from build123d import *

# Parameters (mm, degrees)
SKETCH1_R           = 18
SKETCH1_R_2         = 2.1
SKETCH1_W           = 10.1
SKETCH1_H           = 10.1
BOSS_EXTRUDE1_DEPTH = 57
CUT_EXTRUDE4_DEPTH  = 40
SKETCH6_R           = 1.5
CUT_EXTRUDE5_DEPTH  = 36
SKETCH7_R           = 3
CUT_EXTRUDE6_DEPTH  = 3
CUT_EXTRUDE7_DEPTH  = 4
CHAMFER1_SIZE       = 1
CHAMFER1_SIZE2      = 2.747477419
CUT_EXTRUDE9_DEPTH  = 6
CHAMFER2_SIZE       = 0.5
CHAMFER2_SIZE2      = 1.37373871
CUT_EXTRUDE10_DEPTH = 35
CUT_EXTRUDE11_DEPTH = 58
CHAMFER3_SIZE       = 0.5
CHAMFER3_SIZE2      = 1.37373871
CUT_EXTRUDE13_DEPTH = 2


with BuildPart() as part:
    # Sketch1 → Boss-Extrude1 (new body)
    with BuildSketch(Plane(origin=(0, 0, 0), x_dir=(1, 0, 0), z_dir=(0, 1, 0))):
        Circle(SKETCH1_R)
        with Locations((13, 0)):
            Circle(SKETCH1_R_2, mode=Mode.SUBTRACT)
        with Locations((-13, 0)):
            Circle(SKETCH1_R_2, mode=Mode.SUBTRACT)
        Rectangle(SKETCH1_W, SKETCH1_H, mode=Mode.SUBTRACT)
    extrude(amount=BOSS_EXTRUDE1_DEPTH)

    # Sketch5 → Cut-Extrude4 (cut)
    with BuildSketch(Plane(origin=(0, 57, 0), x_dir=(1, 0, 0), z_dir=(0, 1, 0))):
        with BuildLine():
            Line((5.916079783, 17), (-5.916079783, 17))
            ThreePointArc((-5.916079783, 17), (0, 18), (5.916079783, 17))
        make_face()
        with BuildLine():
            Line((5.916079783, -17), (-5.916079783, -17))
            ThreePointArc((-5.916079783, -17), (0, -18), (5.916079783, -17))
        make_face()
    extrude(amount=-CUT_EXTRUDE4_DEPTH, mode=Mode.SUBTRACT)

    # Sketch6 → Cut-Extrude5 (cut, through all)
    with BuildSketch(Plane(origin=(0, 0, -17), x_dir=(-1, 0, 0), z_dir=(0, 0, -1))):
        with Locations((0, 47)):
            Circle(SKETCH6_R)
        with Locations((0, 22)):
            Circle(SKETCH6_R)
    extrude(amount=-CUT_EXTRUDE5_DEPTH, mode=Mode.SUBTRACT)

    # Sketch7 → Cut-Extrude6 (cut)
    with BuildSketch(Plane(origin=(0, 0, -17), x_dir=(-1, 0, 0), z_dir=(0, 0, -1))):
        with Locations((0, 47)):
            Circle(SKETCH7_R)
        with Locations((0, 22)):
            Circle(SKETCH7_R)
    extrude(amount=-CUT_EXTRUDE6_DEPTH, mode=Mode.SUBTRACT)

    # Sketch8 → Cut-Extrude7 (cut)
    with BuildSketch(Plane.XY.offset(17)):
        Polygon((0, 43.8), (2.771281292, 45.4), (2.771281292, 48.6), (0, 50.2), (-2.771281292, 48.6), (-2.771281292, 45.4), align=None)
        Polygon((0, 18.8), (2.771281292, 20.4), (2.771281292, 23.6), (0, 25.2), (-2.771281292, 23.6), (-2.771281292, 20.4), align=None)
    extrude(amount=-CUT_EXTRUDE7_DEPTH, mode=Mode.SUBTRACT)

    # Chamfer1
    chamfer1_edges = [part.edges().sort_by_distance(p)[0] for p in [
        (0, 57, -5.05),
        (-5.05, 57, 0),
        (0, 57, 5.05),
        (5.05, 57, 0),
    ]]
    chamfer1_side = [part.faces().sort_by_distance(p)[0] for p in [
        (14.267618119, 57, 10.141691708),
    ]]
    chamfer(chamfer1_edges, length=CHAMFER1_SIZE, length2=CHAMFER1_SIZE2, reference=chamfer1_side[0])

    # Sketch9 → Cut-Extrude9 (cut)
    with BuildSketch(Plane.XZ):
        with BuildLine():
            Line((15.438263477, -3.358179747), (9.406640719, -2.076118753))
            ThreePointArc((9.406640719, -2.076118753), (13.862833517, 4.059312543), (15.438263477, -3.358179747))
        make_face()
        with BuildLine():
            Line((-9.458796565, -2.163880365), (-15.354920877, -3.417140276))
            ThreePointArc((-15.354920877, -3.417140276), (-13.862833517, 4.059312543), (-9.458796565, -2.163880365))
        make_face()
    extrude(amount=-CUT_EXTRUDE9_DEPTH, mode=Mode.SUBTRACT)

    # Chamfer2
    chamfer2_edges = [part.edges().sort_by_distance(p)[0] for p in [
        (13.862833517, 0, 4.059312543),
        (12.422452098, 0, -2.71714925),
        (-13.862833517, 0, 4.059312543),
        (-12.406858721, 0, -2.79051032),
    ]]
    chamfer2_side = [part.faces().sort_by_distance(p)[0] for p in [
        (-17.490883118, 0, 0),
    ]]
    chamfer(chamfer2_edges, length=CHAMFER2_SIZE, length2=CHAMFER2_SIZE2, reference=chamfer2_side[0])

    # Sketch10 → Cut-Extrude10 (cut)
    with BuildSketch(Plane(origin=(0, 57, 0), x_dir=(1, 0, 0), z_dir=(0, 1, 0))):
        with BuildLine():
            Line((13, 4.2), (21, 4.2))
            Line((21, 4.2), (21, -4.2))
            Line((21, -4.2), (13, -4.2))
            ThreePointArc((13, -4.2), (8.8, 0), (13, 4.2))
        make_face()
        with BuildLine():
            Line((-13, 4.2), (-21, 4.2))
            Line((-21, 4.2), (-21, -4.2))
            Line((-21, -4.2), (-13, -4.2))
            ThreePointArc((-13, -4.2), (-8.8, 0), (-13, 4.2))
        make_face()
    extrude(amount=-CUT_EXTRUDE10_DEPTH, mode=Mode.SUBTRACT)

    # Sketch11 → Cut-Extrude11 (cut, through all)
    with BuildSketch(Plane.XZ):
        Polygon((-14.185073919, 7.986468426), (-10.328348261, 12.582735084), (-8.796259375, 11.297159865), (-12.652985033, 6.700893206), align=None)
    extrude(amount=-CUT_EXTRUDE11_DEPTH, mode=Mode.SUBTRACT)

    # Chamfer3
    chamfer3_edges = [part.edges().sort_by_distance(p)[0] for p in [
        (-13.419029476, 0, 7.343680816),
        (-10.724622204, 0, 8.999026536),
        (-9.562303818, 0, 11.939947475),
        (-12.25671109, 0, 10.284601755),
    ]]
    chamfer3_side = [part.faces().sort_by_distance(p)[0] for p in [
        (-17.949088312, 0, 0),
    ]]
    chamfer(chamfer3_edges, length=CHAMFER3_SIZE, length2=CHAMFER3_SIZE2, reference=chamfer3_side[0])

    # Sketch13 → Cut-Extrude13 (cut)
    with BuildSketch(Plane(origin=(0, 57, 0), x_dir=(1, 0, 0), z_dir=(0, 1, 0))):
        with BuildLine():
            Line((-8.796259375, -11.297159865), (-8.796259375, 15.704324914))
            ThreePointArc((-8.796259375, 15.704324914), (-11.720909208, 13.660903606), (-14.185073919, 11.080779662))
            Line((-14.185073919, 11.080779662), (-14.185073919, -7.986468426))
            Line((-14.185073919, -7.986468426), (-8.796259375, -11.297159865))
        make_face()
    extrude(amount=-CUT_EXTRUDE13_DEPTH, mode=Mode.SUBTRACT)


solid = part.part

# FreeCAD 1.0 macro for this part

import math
import FreeCAD as App
import Part
import Sketcher
Q = App.Units.Quantity


def edges_at(feature, points):
    """Names of the edges that pass closest to the given points."""
    edges = feature.Shape.Edges
    near = lambda p: min(range(len(edges)), key=lambda i: edges[i].distToShape(Part.Vertex(*p))[0])
    return sorted({f"Edge{near(p) + 1}" for p in points})

doc = App.newDocument("Part")
body = doc.addObject("PartDesign::Body", "Body")

# Sketch on XZ plane
sketch1 = body.newObject("Sketcher::SketchObject", "Sketch")
sketch1.AttachmentSupport = (doc.getObject("XZ_Plane"), [""])
sketch1.MapMode = "FlatFace"
sketch1.addGeometry([
    Part.Circle(App.Vector(0, 0, 0), App.Vector(0, 0, 1), 18),  # 0
    Part.Circle(App.Vector(-13, 0, 0), App.Vector(0, 0, 1), 2.1),  # 1
    Part.LineSegment(App.Vector(5, 5, 0), App.Vector(-5, 5, 0)),  # 2
    Part.LineSegment(App.Vector(-5, 5, 0), App.Vector(-5, -5, 0)),  # 3
    Part.LineSegment(App.Vector(-5, -5, 0), App.Vector(5, -5, 0)),  # 4
    Part.LineSegment(App.Vector(5, -5, 0), App.Vector(5, 5, 0)),  # 5
    Part.Circle(App.Vector(13, 0, 0), App.Vector(0, 0, 1), 2.1),  # 6
], False)
sketch1.addConstraint([
    Sketcher.Constraint("Coincident", 2, 2, 3, 1),
    Sketcher.Constraint("Coincident", 3, 2, 4, 1),
    Sketcher.Constraint("Coincident", 4, 2, 5, 1),
    Sketcher.Constraint("Coincident", 5, 2, 2, 1),
    Sketcher.Constraint("Horizontal", 2),
    Sketcher.Constraint("Vertical", 3),
    Sketcher.Constraint("Horizontal", 4),
    Sketcher.Constraint("Vertical", 5),
    Sketcher.Constraint("Coincident", 0, 3, -1, 1),
    Sketcher.Constraint("Equal", 1, 6),
    Sketcher.Constraint("Symmetric", 1, 3, 6, 3, -1, 1),
    Sketcher.Constraint("Symmetric", 2, 2, 4, 2, -1, 1),
    Sketcher.Constraint("PointOnObject", 1, 3, -1),
    Sketcher.Constraint("Equal", 4, 3),
    Sketcher.Constraint("Diameter", 0, 36.0),
    Sketcher.Constraint("Diameter", 1, 4.2),
    Sketcher.Constraint("DistanceX", 2, 2, 2, 1, 10.1),
    Sketcher.Constraint("DistanceX", 1, 3, -1, 1, 13.0),
])
pad1 = body.newObject("PartDesign::Pad", "Pad")
pad1.Profile = sketch1
pad1.Length = 57
pad1.Reversed = True

# Sketch on XZ plane
sketch2 = body.newObject("Sketcher::SketchObject", "Sketch001")
sketch2.AttachmentSupport = (doc.getObject("XZ_Plane"), [""])
sketch2.MapMode = "FlatFace"
sketch2.AttachmentOffset = App.Placement(App.Vector(0, 0, -57), App.Rotation())
sketch2.addGeometry([
    Part.LineSegment(App.Vector(-6, -17, 0), App.Vector(6, -17, 0)),
    Part.ArcOfCircle(Part.Circle(App.Vector(0, 0, 0), App.Vector(0, 0, 1), 18), math.radians(-109), math.radians(-71)),
    Part.LineSegment(App.Vector(6, 17, 0), App.Vector(-6, 17, 0)),
    Part.ArcOfCircle(Part.Circle(App.Vector(0, 0, 0), App.Vector(0, 0, 1), 18), math.radians(71), math.radians(109)),
], False)
sketch2.addConstraint([
    Sketcher.Constraint("Coincident", 0, 1, 1, 1),
    Sketcher.Constraint("Coincident", 1, 2, 0, 2),
    Sketcher.Constraint("Coincident", 2, 1, 3, 1),
    Sketcher.Constraint("Coincident", 3, 2, 2, 2),
    Sketcher.Constraint("Horizontal", 0),
    Sketcher.Constraint("Horizontal", 2),
    Sketcher.Constraint("Coincident", 1, 3, -1, 1),
    Sketcher.Constraint("Coincident", 3, 3, -1, 1),
    Sketcher.Constraint("Equal", 1, 3),
    Sketcher.Constraint("Vertical", 1, 2, 2, 1),
    Sketcher.Constraint("Radius", 1, 18.0),
    Sketcher.Constraint("DistanceY", 0, 1, -1, 1, 17.0),
])
pocket1 = body.newObject("PartDesign::Pocket", "Pocket")
pocket1.Profile = sketch2
pocket1.Length = 40
pocket1.Reversed = True

# Sketch on XY plane
sketch3 = body.newObject("Sketcher::SketchObject", "Sketch002")
sketch3.AttachmentSupport = (doc.getObject("XY_Plane"), [""])
sketch3.MapMode = "FlatFace"
sketch3.AttachmentOffset = App.Placement(App.Vector(0, 0, -17), App.Rotation())
sketch3.addGeometry([
    Part.Circle(App.Vector(0, 47, 0), App.Vector(0, 0, 1), 1.5),
    Part.Circle(App.Vector(0, 22, 0), App.Vector(0, 0, 1), 1.5),
], False)
sketch3.addConstraint([
    Sketcher.Constraint("Equal", 0, 1),
    Sketcher.Constraint("PointOnObject", 0, 3, -2),
    Sketcher.Constraint("PointOnObject", 1, 3, -2),
    Sketcher.Constraint("Diameter", 0, 3.0),
    Sketcher.Constraint("DistanceY", -1, 1, 0, 3, 47.0),
    Sketcher.Constraint("DistanceY", -1, 1, 1, 3, 22.0),
])
pocket2 = body.newObject("PartDesign::Pocket", "Pocket001")
pocket2.Profile = sketch3
pocket2.Type = "ThroughAll"
pocket2.Reversed = True

# Sketch on XY plane
sketch4 = body.newObject("Sketcher::SketchObject", "Sketch003")
sketch4.AttachmentSupport = (doc.getObject("XY_Plane"), [""])
sketch4.MapMode = "FlatFace"
sketch4.AttachmentOffset = App.Placement(App.Vector(0, 0, -17), App.Rotation())
sketch4.addGeometry([
    Part.Circle(App.Vector(0, 47, 0), App.Vector(0, 0, 1), 3),
    Part.Circle(App.Vector(0, 22, 0), App.Vector(0, 0, 1), 3),
], False)
sketch4.addConstraint([
    Sketcher.Constraint("Equal", 0, 1),
    Sketcher.Constraint("PointOnObject", 0, 3, -2),
    Sketcher.Constraint("PointOnObject", 1, 3, -2),
    Sketcher.Constraint("Diameter", 0, 6.0),
    Sketcher.Constraint("DistanceY", -1, 1, 0, 3, 47.0),
    Sketcher.Constraint("DistanceY", -1, 1, 1, 3, 22.0),
])
pocket3 = body.newObject("PartDesign::Pocket", "Pocket002")
pocket3.Profile = sketch4
pocket3.Length = 3
pocket3.Reversed = True

# Sketch on XY plane
sketch5 = body.newObject("Sketcher::SketchObject", "Sketch004")
sketch5.AttachmentSupport = (doc.getObject("XY_Plane"), [""])
sketch5.MapMode = "FlatFace"
sketch5.AttachmentOffset = App.Placement(App.Vector(0, 0, 17), App.Rotation())
sketch5.addGeometry([
    Part.LineSegment(App.Vector(0, 43.8, 0), App.Vector(2.8, 45.4, 0)),  # 0
    Part.LineSegment(App.Vector(2.8, 45.4, 0), App.Vector(2.8, 48.6, 0)),  # 1
    Part.LineSegment(App.Vector(2.8, 48.6, 0), App.Vector(0, 50.2, 0)),  # 2
    Part.LineSegment(App.Vector(0, 50.2, 0), App.Vector(-2.8, 48.6, 0)),  # 3
    Part.LineSegment(App.Vector(-2.8, 48.6, 0), App.Vector(-2.8, 45.4, 0)),  # 4
    Part.LineSegment(App.Vector(-2.8, 45.4, 0), App.Vector(0, 43.8, 0)),  # 5
    Part.LineSegment(App.Vector(0, 18.8, 0), App.Vector(2.8, 20.4, 0)),  # 6
    Part.LineSegment(App.Vector(2.8, 20.4, 0), App.Vector(2.8, 23.6, 0)),  # 7
    Part.LineSegment(App.Vector(2.8, 23.6, 0), App.Vector(0, 25.2, 0)),  # 8
    Part.LineSegment(App.Vector(0, 25.2, 0), App.Vector(-2.8, 23.6, 0)),  # 9
    Part.LineSegment(App.Vector(-2.8, 23.6, 0), App.Vector(-2.8, 20.4, 0)),  # 10
    Part.LineSegment(App.Vector(-2.8, 20.4, 0), App.Vector(0, 18.8, 0)),  # 11
], False)
sketch5.addConstraint([
    Sketcher.Constraint("Coincident", 0, 2, 1, 1),
    Sketcher.Constraint("Coincident", 1, 2, 2, 1),
    Sketcher.Constraint("Coincident", 2, 2, 3, 1),
    Sketcher.Constraint("Coincident", 3, 2, 4, 1),
    Sketcher.Constraint("Coincident", 4, 2, 5, 1),
    Sketcher.Constraint("Coincident", 5, 2, 0, 1),
    Sketcher.Constraint("Coincident", 6, 2, 7, 1),
    Sketcher.Constraint("Coincident", 7, 2, 8, 1),
    Sketcher.Constraint("Coincident", 8, 2, 9, 1),
    Sketcher.Constraint("Coincident", 9, 2, 10, 1),
    Sketcher.Constraint("Coincident", 10, 2, 11, 1),
    Sketcher.Constraint("Coincident", 11, 2, 6, 1),
    Sketcher.Constraint("Vertical", 1),
    Sketcher.Constraint("Vertical", 4),
    Sketcher.Constraint("Vertical", 7),
    Sketcher.Constraint("Vertical", 10),
    Sketcher.Constraint("Symmetric", 1, 2, 3, 2, -2),
    Sketcher.Constraint("Symmetric", 7, 2, 9, 2, -2),
    Sketcher.Constraint("PointOnObject", 2, 2, -2),
    Sketcher.Constraint("PointOnObject", 5, 2, -2),
    Sketcher.Constraint("PointOnObject", 8, 2, -2),
    Sketcher.Constraint("PointOnObject", 11, 2, -2),
    Sketcher.Constraint("Parallel", 0, 3),
    Sketcher.Constraint("Parallel", 2, 5),
    Sketcher.Constraint("Parallel", 3, 6),
    Sketcher.Constraint("Parallel", 5, 8),
    Sketcher.Constraint("Parallel", 8, 11),
    Sketcher.Constraint("Vertical", 1, 2, 6, 2),
    Sketcher.Constraint("Equal", 4, 7),
    Sketcher.Constraint("Angle", 0, Q("30 deg")),
    Sketcher.Constraint("DistanceY", 1, 1, 1, 2, 3.2),
    Sketcher.Constraint("DistanceY", 6, 2, 0, 2, 25.0),
    Sketcher.Constraint("Distance", 0, 3.2),
    Sketcher.Constraint("DistanceY", -1, 1, 0, 2, 45.4),
])
pocket4 = body.newObject("PartDesign::Pocket", "Pocket003")
pocket4.Profile = sketch5
pocket4.Length = 4
doc.recompute()

chamfer = body.newObject("PartDesign::Chamfer", "Chamfer")
chamfer.Base = (pocket4, edges_at(pocket4, [
    (0, 57, -5.05),
    (-5.05, 57, 0),
    (0, 57, 5.05),
    (5.05, 57, 0),
]))
chamfer.ChamferType = "Two distances"
chamfer.Size = 1
chamfer.Size2 = 2.747477

# Sketch on XZ plane
sketch6 = body.newObject("Sketcher::SketchObject", "Sketch005")
sketch6.AttachmentSupport = (doc.getObject("XZ_Plane"), [""])
sketch6.MapMode = "FlatFace"
sketch6.addGeometry([
    Part.LineSegment(App.Vector(9.4, -2.1, 0), App.Vector(15.4, -3.4, 0)),
    Part.ArcOfCircle(Part.Circle(App.Vector(13, 0, 0), App.Vector(0, 0, 1), 4.2), math.radians(-54), math.radians(210)),
    Part.LineSegment(App.Vector(-15.4, -3.4, 0), App.Vector(-9.5, -2.2, 0)),
    Part.ArcOfCircle(Part.Circle(App.Vector(-13, 0, 0), App.Vector(0, 0, 1), 4.2), math.radians(-31), math.radians(235)),
], False)
sketch6.addConstraint([
    Sketcher.Constraint("Coincident", 0, 1, 1, 2),
    Sketcher.Constraint("Coincident", 1, 1, 0, 2),
    Sketcher.Constraint("Coincident", 2, 1, 3, 2),
    Sketcher.Constraint("Coincident", 3, 1, 2, 2),
    Sketcher.Constraint("Equal", 1, 3),
    Sketcher.Constraint("Symmetric", 1, 3, 3, 3, -1, 1),
    Sketcher.Constraint("PointOnObject", 1, 3, -1),
    Sketcher.Constraint("Angle", 0, Q("-12 deg")),
    Sketcher.Constraint("Angle", 2, Q("12 deg")),
    Sketcher.Constraint("Radius", 1, 4.15),
    Sketcher.Constraint("DistanceX", -1, 1, 1, 3, 13.0),
    Sketcher.Constraint("DistanceY", 1, 1, 3, 1, 1.194299),
    Sketcher.Constraint("DistanceX", -1, 1, 0, 1, 9.406641),
])
pocket5 = body.newObject("PartDesign::Pocket", "Pocket004")
pocket5.Profile = sketch6
pocket5.Length = 6
doc.recompute()

chamfer2 = body.newObject("PartDesign::Chamfer", "Chamfer001")
chamfer2.Base = (pocket5, edges_at(pocket5, [
    (13.863, 0, 4.059),
    (12.422, 0, -2.717),
    (-13.863, 0, 4.059),
    (-12.407, 0, -2.791),
]))
chamfer2.ChamferType = "Two distances"
chamfer2.Size = 0.5
chamfer2.Size2 = 1.373739

# Sketch on XZ plane
sketch7 = body.newObject("Sketcher::SketchObject", "Sketch006")
sketch7.AttachmentSupport = (doc.getObject("XZ_Plane"), [""])
sketch7.MapMode = "FlatFace"
sketch7.AttachmentOffset = App.Placement(App.Vector(0, 0, -57), App.Rotation())
sketch7.addGeometry([
    Part.LineSegment(App.Vector(21, -4.2, 0), App.Vector(13, -4.2, 0)),  # 0
    Part.ArcOfCircle(Part.Circle(App.Vector(13, 0, 0), App.Vector(0, 0, 1), 4.2), math.radians(90), math.radians(270)),  # 1
    Part.LineSegment(App.Vector(13, 4.2, 0), App.Vector(21, 4.2, 0)),  # 2
    Part.LineSegment(App.Vector(21, 4.2, 0), App.Vector(21, -4.2, 0)),  # 3
    Part.LineSegment(App.Vector(-13, -4.2, 0), App.Vector(-21, -4.2, 0)),  # 4
    Part.LineSegment(App.Vector(-21, -4.2, 0), App.Vector(-21, 4.2, 0)),  # 5
    Part.LineSegment(App.Vector(-21, 4.2, 0), App.Vector(-13, 4.2, 0)),  # 6
    Part.ArcOfCircle(Part.Circle(App.Vector(-13, 0, 0), App.Vector(0, 0, 1), 4.2), math.radians(-90), math.radians(90)),  # 7
], False)
sketch7.addConstraint([
    Sketcher.Constraint("Tangent", 0, 2, 1, 2),
    Sketcher.Constraint("Tangent", 1, 1, 2, 1),
    Sketcher.Constraint("Coincident", 2, 2, 3, 1),
    Sketcher.Constraint("Coincident", 3, 2, 0, 1),
    Sketcher.Constraint("Coincident", 4, 2, 5, 1),
    Sketcher.Constraint("Coincident", 5, 2, 6, 1),
    Sketcher.Constraint("Tangent", 6, 2, 7, 2),
    Sketcher.Constraint("Tangent", 7, 1, 4, 1),
    Sketcher.Constraint("Horizontal", 0),
    Sketcher.Constraint("Horizontal", 2),
    Sketcher.Constraint("Vertical", 3),
    Sketcher.Constraint("Horizontal", 4),
    Sketcher.Constraint("Vertical", 5),
    Sketcher.Constraint("Horizontal", 6),
    Sketcher.Constraint("Equal", 1, 7),
    Sketcher.Constraint("Symmetric", 1, 3, 7, 3, -1, 1),
    Sketcher.Constraint("Symmetric", 3, 2, 4, 2, -2),
    Sketcher.Constraint("Radius", 1, 4.2),
    Sketcher.Constraint("DistanceX", 0, 2, 0, 1, 8.0),
    Sketcher.Constraint("DistanceX", -1, 1, 1, 3, 13.0),
])
pocket6 = body.newObject("PartDesign::Pocket", "Pocket005")
pocket6.Profile = sketch7
pocket6.Length = 35
pocket6.Reversed = True

# Sketch on XZ plane
sketch8 = body.newObject("Sketcher::SketchObject", "Sketch007")
sketch8.AttachmentSupport = (doc.getObject("XZ_Plane"), [""])
sketch8.MapMode = "FlatFace"
sketch8.addGeometry([
    Part.LineSegment(App.Vector(-10.3, 12.6, 0), App.Vector(-14.2, 8, 0)),
    Part.LineSegment(App.Vector(-14.2, 8, 0), App.Vector(-12.7, 6.7, 0)),
    Part.LineSegment(App.Vector(-12.7, 6.7, 0), App.Vector(-8.8, 11.3, 0)),
    Part.LineSegment(App.Vector(-8.8, 11.3, 0), App.Vector(-10.3, 12.6, 0)),
], False)
sketch8.addConstraint([
    Sketcher.Constraint("Coincident", 0, 2, 1, 1),
    Sketcher.Constraint("Coincident", 1, 2, 2, 1),
    Sketcher.Constraint("Coincident", 2, 2, 3, 1),
    Sketcher.Constraint("Coincident", 3, 2, 0, 1),
    Sketcher.Constraint("Perpendicular", 0, 1),
    Sketcher.Constraint("Perpendicular", 1, 2),
    Sketcher.Constraint("Perpendicular", 2, 3),
    Sketcher.Constraint("Angle", 0, Q("-130 deg")),
    Sketcher.Constraint("Distance", 0, 6.0),
    Sketcher.Constraint("Distance", 1, 2.0),
    Sketcher.Constraint("DistanceY", -1, 1, 0, 2, 7.986468),
    Sketcher.Constraint("DistanceX", 2, 2, -1, 1, 8.796259),
])
pocket7 = body.newObject("PartDesign::Pocket", "Pocket006")
pocket7.Profile = sketch8
pocket7.Type = "ThroughAll"
doc.recompute()

chamfer3 = body.newObject("PartDesign::Chamfer", "Chamfer002")
chamfer3.Base = (pocket7, edges_at(pocket7, [
    (-13.419, 0, 7.344),
    (-10.725, 0, 8.999),
    (-9.562, 0, 11.94),
    (-12.257, 0, 10.285),
]))
chamfer3.ChamferType = "Two distances"
chamfer3.Size = 0.5
chamfer3.Size2 = 1.373739

# Sketch on XZ plane
sketch9 = body.newObject("Sketcher::SketchObject", "Sketch008")
sketch9.AttachmentSupport = (doc.getObject("XZ_Plane"), [""])
sketch9.MapMode = "FlatFace"
sketch9.AttachmentOffset = App.Placement(App.Vector(0, 0, -57), App.Rotation())
sketch9.addGeometry([
    Part.LineSegment(App.Vector(-9, 11, 0), App.Vector(-9, -16, 0)),
    Part.ArcOfCircle(Part.Circle(App.Vector(0, 0, 0), App.Vector(0, 0, 1), 18), math.radians(-142), math.radians(-119)),
    Part.LineSegment(App.Vector(-14, -11, 0), App.Vector(-14, 8, 0)),
    Part.LineSegment(App.Vector(-14, 8, 0), App.Vector(-9, 11, 0)),
], False)
sketch9.addConstraint([
    Sketcher.Constraint("Coincident", 0, 2, 1, 2),
    Sketcher.Constraint("Coincident", 1, 1, 2, 1),
    Sketcher.Constraint("Coincident", 2, 2, 3, 1),
    Sketcher.Constraint("Coincident", 3, 2, 0, 1),
    Sketcher.Constraint("Vertical", 0),
    Sketcher.Constraint("Vertical", 2),
    Sketcher.Constraint("Coincident", 1, 3, -1, 1),
    Sketcher.Constraint("Radius", 1, 18.0),
    Sketcher.Constraint("DistanceY", 2, 1, 2, 2, 19.067248),
    Sketcher.Constraint("DistanceY", 0, 2, 0, 1, 27.001485),
    Sketcher.Constraint("DistanceX", 0, 2, -1, 1, 8.796259),
    Sketcher.Constraint("DistanceY", 1, 1, -1, 1, 11.08078),
])
pocket8 = body.newObject("PartDesign::Pocket", "Pocket007")
pocket8.Profile = sketch9
pocket8.Length = 2
pocket8.Reversed = True

doc.recompute()
